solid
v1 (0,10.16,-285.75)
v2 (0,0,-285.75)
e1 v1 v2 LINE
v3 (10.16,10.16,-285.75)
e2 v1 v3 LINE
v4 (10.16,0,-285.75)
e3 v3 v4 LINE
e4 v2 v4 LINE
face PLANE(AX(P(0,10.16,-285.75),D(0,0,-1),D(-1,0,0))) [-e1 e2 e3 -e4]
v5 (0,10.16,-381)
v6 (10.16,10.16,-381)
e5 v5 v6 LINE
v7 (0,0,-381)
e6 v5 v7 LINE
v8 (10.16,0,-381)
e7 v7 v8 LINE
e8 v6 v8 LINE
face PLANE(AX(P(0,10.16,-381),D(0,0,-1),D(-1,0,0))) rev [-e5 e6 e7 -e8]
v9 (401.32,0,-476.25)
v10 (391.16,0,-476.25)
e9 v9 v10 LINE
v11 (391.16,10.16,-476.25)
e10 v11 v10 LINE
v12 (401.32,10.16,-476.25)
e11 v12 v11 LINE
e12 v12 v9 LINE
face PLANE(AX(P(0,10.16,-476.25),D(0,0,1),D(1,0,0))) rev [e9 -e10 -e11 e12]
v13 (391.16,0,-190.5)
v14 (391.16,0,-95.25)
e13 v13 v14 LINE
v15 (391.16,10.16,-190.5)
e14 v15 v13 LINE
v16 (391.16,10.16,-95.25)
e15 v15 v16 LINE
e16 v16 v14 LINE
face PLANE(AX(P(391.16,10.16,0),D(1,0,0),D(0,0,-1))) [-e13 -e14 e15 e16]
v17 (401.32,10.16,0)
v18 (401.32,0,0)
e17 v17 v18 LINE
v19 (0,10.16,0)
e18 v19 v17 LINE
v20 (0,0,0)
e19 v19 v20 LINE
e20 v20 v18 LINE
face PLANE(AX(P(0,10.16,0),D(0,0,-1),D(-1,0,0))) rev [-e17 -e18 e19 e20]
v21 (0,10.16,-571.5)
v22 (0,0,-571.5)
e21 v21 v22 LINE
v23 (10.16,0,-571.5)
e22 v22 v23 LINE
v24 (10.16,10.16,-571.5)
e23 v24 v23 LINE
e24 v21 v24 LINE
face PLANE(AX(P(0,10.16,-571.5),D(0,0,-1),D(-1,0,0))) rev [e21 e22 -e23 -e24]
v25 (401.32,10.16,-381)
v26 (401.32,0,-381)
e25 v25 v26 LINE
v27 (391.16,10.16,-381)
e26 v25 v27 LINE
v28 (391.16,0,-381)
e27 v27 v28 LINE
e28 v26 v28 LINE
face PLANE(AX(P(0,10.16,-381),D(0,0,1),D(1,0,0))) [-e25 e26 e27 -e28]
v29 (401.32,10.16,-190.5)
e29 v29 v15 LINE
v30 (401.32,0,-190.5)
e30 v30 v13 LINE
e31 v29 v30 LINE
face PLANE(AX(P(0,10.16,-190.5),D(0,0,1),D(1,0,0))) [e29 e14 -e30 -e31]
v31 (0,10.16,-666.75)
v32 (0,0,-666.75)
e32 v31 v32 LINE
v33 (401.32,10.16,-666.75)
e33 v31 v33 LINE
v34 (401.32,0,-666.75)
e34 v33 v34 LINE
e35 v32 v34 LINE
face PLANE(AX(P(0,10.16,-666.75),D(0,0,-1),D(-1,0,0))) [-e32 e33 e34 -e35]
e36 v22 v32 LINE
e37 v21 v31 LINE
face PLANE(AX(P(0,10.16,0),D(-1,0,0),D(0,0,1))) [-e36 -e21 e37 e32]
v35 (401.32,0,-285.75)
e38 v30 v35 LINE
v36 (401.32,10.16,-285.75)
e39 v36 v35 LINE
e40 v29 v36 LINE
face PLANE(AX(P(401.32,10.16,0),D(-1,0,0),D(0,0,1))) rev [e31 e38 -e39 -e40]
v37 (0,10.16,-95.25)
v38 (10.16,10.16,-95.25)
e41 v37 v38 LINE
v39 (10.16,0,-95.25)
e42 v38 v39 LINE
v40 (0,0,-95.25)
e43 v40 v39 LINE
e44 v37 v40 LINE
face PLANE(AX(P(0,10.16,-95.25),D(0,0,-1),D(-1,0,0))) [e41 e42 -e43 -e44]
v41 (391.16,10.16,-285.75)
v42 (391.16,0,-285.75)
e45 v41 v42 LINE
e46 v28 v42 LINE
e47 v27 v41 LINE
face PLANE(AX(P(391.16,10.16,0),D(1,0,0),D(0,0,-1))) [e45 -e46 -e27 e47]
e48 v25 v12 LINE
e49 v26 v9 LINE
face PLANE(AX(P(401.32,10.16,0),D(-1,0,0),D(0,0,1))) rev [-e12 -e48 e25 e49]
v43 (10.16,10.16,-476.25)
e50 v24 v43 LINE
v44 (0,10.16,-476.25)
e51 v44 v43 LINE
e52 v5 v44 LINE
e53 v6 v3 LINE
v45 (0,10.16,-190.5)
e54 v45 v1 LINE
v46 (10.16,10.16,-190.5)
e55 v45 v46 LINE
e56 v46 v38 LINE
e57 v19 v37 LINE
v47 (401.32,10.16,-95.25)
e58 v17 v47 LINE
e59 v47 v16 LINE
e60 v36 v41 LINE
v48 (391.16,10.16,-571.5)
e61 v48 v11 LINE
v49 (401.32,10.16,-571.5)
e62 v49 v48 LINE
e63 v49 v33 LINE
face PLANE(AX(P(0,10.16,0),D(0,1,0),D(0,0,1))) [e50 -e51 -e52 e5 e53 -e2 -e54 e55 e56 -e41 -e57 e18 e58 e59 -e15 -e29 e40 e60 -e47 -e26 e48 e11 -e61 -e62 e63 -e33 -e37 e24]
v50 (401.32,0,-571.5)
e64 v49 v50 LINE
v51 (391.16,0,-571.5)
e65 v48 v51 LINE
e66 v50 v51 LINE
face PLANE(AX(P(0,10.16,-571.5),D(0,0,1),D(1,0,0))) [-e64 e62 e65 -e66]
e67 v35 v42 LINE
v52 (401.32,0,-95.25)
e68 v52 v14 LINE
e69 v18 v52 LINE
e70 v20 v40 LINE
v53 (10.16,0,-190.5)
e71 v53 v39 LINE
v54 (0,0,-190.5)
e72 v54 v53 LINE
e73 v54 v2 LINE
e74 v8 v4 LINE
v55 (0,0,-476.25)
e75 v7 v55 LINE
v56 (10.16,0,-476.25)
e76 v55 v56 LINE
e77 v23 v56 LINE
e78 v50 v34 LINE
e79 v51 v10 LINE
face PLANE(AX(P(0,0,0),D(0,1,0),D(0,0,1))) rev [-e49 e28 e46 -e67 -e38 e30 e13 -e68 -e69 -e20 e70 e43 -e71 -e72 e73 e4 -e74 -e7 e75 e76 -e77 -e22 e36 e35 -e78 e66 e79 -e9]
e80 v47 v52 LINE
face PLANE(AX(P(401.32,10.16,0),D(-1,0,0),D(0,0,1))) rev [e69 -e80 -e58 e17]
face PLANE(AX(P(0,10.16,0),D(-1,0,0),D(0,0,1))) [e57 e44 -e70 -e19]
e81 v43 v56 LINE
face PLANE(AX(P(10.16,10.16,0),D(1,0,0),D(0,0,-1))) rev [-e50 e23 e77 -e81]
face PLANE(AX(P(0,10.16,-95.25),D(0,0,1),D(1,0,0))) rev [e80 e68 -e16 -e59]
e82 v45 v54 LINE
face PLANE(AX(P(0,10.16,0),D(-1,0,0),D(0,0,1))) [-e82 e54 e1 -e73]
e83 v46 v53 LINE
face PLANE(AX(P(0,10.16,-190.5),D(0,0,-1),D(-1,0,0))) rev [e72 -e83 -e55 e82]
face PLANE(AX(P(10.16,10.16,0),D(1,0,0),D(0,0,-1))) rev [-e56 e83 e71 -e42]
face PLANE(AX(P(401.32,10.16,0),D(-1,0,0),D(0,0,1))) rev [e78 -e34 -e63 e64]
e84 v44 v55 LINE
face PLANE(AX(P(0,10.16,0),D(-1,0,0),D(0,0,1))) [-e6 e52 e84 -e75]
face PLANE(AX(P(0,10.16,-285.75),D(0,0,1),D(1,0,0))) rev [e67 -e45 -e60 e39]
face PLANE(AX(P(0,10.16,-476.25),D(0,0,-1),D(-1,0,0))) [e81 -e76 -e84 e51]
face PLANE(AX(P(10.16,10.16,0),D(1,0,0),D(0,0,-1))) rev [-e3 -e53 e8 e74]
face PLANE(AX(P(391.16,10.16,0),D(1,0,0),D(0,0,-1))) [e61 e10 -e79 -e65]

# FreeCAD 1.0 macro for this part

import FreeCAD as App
import Part
import Sketcher

V = App.Vector
Q = App.Units.Quantity


def add_polygon(sketch, points):
    """Adds a closed chain of lines whose ends are joined by coincident constraints."""
    first, n = sketch.GeometryCount, len(points)
    for a, b in zip(points, points[1:] + points[:1]):
        sketch.addGeometry(Part.LineSegment(App.Vector(*a, 0), App.Vector(*b, 0)), False)
    for i in range(n):
        sketch.addConstraint(Sketcher.Constraint("Coincident", first + i, 2, first + (i + 1) % n, 1))

doc = App.newDocument("Part")
params = doc.addObject("Spreadsheet::Sheet", "Params")
for row, (alias, value) in enumerate([
    ("sketch1_width", "15.8 in"),
    ("sketch1_width2", "0.4 in"),
    ("pad1_length", "0.4 in"),
], start=1):
    params.set(f"A{row}", alias)
    params.set(f"B{row}", "=" + value)
    params.setAlias(f"B{row}", alias)

body = doc.addObject("PartDesign::Body", "Body")

# Sketch on XZ plane
sketch1 = doc.addObject("Sketcher::SketchObject", "Sketch")
body.addObject(sketch1)
sketch1.AttachmentSupport = (doc.XZ_Plane, [""])
sketch1.MapMode = "FlatFace"
add_polygon(sketch1, [(0, -95.25), (0, 0), (401.32, 0), (401.32, -95.25), (391.16, -95.25), (391.16, -190.5), (401.32, -190.5), (401.32, -285.75), (391.16, -285.75), (391.16, -381), (401.32, -381), (401.32, -476.25), (391.16, -476.25), (391.16, -571.5), (401.32, -571.5), (401.32, -666.75), (0, -666.75), (0, -571.5), (10.16, -571.5), (10.16, -476.25), (0, -476.25), (0, -381), (10.16, -381), (10.16, -285.75), (0, -285.75), (0, -190.5), (10.16, -190.5), (10.16, -95.25)])  # lines 0-27
sketch1.addConstraint([
    Sketcher.Constraint("Vertical", 0),
    Sketcher.Constraint("Horizontal", 1),
    Sketcher.Constraint("Vertical", 2),
    Sketcher.Constraint("Horizontal", 3),
    Sketcher.Constraint("Vertical", 4),
    Sketcher.Constraint("Horizontal", 5),
    Sketcher.Constraint("Vertical", 6),
    Sketcher.Constraint("Horizontal", 7),
    Sketcher.Constraint("Vertical", 8),
    Sketcher.Constraint("Horizontal", 9),
    Sketcher.Constraint("Vertical", 10),
    Sketcher.Constraint("Horizontal", 11),
    Sketcher.Constraint("Vertical", 12),
    Sketcher.Constraint("Horizontal", 13),
    Sketcher.Constraint("Vertical", 14),
    Sketcher.Constraint("Horizontal", 15),
    Sketcher.Constraint("Vertical", 16),
    Sketcher.Constraint("Horizontal", 17),
    Sketcher.Constraint("Vertical", 18),
    Sketcher.Constraint("Horizontal", 19),
    Sketcher.Constraint("Vertical", 20),
    Sketcher.Constraint("Horizontal", 21),
    Sketcher.Constraint("Vertical", 22),
    Sketcher.Constraint("Horizontal", 23),
    Sketcher.Constraint("Vertical", 24),
    Sketcher.Constraint("Horizontal", 25),
    Sketcher.Constraint("Vertical", 26),
    Sketcher.Constraint("Horizontal", 27),
    Sketcher.Constraint("Coincident", 0, 2, -1, 1),
    Sketcher.Constraint("PointOnObject", 15, 2, -2),
    Sketcher.Constraint("PointOnObject", 19, 2, -2),
    Sketcher.Constraint("PointOnObject", 23, 2, -2),
    Sketcher.Constraint("Horizontal", 13, 2, 16, 2),
    Sketcher.Constraint("Horizontal", 11, 2, 18, 2),
    Sketcher.Constraint("Horizontal", 9, 2, 20, 2),
    Sketcher.Constraint("Horizontal", 7, 2, 22, 2),
    Sketcher.Constraint("Horizontal", 5, 2, 24, 2),
    Sketcher.Constraint("Horizontal", 3, 2, 26, 2),
    Sketcher.Constraint("Vertical", 2, 2, 5, 2),
    Sketcher.Constraint("Vertical", 4, 2, 7, 2),
    Sketcher.Constraint("Vertical", 6, 2, 9, 2),
    Sketcher.Constraint("Vertical", 8, 2, 11, 2),
    Sketcher.Constraint("Vertical", 10, 2, 13, 2),
    Sketcher.Constraint("Vertical", 18, 2, 21, 2),
    Sketcher.Constraint("Vertical", 22, 2, 25, 2),
    Sketcher.Constraint("Equal", 13, 17),
    Sketcher.Constraint("Equal", 2, 4),
    Sketcher.Constraint("Equal", 4, 6),
    Sketcher.Constraint("Equal", 6, 8),
    Sketcher.Constraint("Equal", 8, 10),
    Sketcher.Constraint("Equal", 10, 12),
    Sketcher.Constraint("Equal", 12, 14),
    Sketcher.Constraint("DistanceX", 1, 1, 1, 2, Q("15.8 in")),
    Sketcher.Constraint("DistanceX", 3, 2, 3, 1, Q("0.4 in")),
    Sketcher.Constraint("DistanceY", 8, 2, -1, 1, Q("15 in")),
])
sketch1.setExpression("Constraints[80]", "Params.sketch1_width")
sketch1.setExpression("Constraints[81]", "Params.sketch1_width2")
pad1 = doc.addObject("PartDesign::Pad", "Pad")
body.addObject(pad1)
pad1.Profile = sketch1
pad1.setExpression("Length", "Params.pad1_length")
pad1.Reversed = True

doc.recompute()
